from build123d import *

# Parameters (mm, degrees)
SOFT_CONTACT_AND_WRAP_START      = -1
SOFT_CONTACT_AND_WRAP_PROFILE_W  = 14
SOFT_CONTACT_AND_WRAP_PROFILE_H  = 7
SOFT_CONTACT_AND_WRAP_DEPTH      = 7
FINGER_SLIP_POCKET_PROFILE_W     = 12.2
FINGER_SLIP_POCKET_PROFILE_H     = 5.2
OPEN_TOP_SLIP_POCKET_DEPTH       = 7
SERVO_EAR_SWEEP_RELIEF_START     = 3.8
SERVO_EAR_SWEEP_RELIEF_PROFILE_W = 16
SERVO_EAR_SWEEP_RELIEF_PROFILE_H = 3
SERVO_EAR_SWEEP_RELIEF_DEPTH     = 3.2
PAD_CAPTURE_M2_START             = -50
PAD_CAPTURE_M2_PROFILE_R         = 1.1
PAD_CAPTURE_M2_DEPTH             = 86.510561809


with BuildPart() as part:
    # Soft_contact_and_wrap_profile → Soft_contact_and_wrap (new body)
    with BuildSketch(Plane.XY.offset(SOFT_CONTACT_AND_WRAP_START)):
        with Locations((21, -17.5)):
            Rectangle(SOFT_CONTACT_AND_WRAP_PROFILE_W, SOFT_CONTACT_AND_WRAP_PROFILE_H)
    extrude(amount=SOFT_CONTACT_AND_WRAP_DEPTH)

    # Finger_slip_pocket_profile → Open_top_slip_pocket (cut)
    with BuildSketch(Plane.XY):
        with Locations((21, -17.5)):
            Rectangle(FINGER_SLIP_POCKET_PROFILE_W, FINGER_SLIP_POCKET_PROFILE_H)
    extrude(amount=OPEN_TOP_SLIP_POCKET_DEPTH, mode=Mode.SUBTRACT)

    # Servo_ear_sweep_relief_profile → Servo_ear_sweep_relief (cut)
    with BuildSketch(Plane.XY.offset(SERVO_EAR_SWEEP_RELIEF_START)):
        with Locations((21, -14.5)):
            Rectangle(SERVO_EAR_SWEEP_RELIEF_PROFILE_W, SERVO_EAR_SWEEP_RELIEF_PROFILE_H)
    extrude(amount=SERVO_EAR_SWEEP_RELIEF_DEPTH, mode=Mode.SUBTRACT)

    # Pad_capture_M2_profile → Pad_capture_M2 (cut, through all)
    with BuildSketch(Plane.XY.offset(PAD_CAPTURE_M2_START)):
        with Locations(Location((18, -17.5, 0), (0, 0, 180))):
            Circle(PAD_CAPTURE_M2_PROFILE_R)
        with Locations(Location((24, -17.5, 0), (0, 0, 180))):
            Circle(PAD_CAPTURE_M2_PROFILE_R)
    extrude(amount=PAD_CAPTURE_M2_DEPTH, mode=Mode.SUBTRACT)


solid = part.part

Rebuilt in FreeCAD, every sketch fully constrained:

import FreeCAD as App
import Part
import Sketcher

doc = App.newDocument("Part")
body = doc.addObject("PartDesign::Body", "Body")

sketch1 = body.newObject("Sketcher::SketchObject", "Sketch")
sketch1.AttachmentSupport = (doc.getObject("XY_Plane"), [""])
sketch1.MapMode = "FlatFace"
sketch1.AttachmentOffset = App.Placement(App.Vector(0, 0, -1), App.Rotation())
sketch1.addGeometry(Part.LineSegment(App.Vector(14, -14, 0), App.Vector(14, -21, 0)), False)
sketch1.addGeometry(Part.LineSegment(App.Vector(14, -21, 0), App.Vector(28, -21, 0)), False)
sketch1.addGeometry(Part.LineSegment(App.Vector(28, -21, 0), App.Vector(28, -14, 0)), False)
sketch1.addGeometry(Part.LineSegment(App.Vector(28, -14, 0), App.Vector(14, -14, 0)), False)
sketch1.addConstraint(Sketcher.Constraint("Coincident", 0, 2, 1, 1))
sketch1.addConstraint(Sketcher.Constraint("Coincident", 1, 2, 2, 1))
sketch1.addConstraint(Sketcher.Constraint("Coincident", 2, 2, 3, 1))
sketch1.addConstraint(Sketcher.Constraint("Coincident", 3, 2, 0, 1))
sketch1.addConstraint(Sketcher.Constraint("Vertical", 0))
sketch1.addConstraint(Sketcher.Constraint("Horizontal", 1))
sketch1.addConstraint(Sketcher.Constraint("Vertical", 2))
sketch1.addConstraint(Sketcher.Constraint("Horizontal", 3))
sketch1.addConstraint(Sketcher.Constraint("DistanceX", 1, 1, 1, 2, 14.0))
sketch1.addConstraint(Sketcher.Constraint("DistanceY", 0, 2, 0, 1, 7.0))
sketch1.addConstraint(Sketcher.Constraint("DistanceX", -1, 1, 0, 2, 14.0))
sketch1.addConstraint(Sketcher.Constraint("DistanceY", 0, 2, -1, 1, 21.0))
pad1 = body.newObject("PartDesign::Pad", "Pad")
pad1.Profile = sketch1
pad1.Length = 7

sketch2 = body.newObject("Sketcher::SketchObject", "Sketch001")
sketch2.AttachmentSupport = (doc.getObject("XY_Plane"), [""])
sketch2.MapMode = "FlatFace"
sketch2.addGeometry(Part.LineSegment(App.Vector(14.9, -14.9, 0), App.Vector(14.9, -20.1, 0)), False)
sketch2.addGeometry(Part.LineSegment(App.Vector(14.9, -20.1, 0), App.Vector(27.1, -20.1, 0)), False)
sketch2.addGeometry(Part.LineSegment(App.Vector(27.1, -20.1, 0), App.Vector(27.1, -14.9, 0)), False)
sketch2.addGeometry(Part.LineSegment(App.Vector(27.1, -14.9, 0), App.Vector(14.9, -14.9, 0)), False)
sketch2.addConstraint(Sketcher.Constraint("Coincident", 0, 2, 1, 1))
sketch2.addConstraint(Sketcher.Constraint("Coincident", 1, 2, 2, 1))
sketch2.addConstraint(Sketcher.Constraint("Coincident", 2, 2, 3, 1))
sketch2.addConstraint(Sketcher.Constraint("Coincident", 3, 2, 0, 1))
sketch2.addConstraint(Sketcher.Constraint("Vertical", 0))
sketch2.addConstraint(Sketcher.Constraint("Horizontal", 1))
sketch2.addConstraint(Sketcher.Constraint("Vertical", 2))
sketch2.addConstraint(Sketcher.Constraint("Horizontal", 3))
sketch2.addConstraint(Sketcher.Constraint("DistanceX", 1, 1, 1, 2, 12.2))
sketch2.addConstraint(Sketcher.Constraint("DistanceY", 0, 2, 0, 1, 5.2))
sketch2.addConstraint(Sketcher.Constraint("DistanceX", -1, 1, 0, 2, 14.9))
sketch2.addConstraint(Sketcher.Constraint("DistanceY", 0, 2, -1, 1, 20.1))
pocket1 = body.newObject("PartDesign::Pocket", "Pocket")
pocket1.Profile = sketch2
pocket1.Length = 7
pocket1.Reversed = True

sketch3 = body.newObject("Sketcher::SketchObject", "Sketch002")
sketch3.AttachmentSupport = (doc.getObject("XY_Plane"), [""])
sketch3.MapMode = "FlatFace"
sketch3.AttachmentOffset = App.Placement(App.Vector(0, 0, 3.8), App.Rotation())
sketch3.addGeometry(Part.LineSegment(App.Vector(13, -13, 0), App.Vector(13, -16, 0)), False)
sketch3.addGeometry(Part.LineSegment(App.Vector(13, -16, 0), App.Vector(29, -16, 0)), False)
sketch3.addGeometry(Part.LineSegment(App.Vector(29, -16, 0), App.Vector(29, -13, 0)), False)
sketch3.addGeometry(Part.LineSegment(App.Vector(29, -13, 0), App.Vector(13, -13, 0)), False)
sketch3.addConstraint(Sketcher.Constraint("Coincident", 0, 2, 1, 1))
sketch3.addConstraint(Sketcher.Constraint("Coincident", 1, 2, 2, 1))
sketch3.addConstraint(Sketcher.Constraint("Coincident", 2, 2, 3, 1))
sketch3.addConstraint(Sketcher.Constraint("Coincident", 3, 2, 0, 1))
sketch3.addConstraint(Sketcher.Constraint("Vertical", 0))
sketch3.addConstraint(Sketcher.Constraint("Horizontal", 1))
sketch3.addConstraint(Sketcher.Constraint("Vertical", 2))
sketch3.addConstraint(Sketcher.Constraint("Horizontal", 3))
sketch3.addConstraint(Sketcher.Constraint("DistanceX", 1, 1, 1, 2, 16.0))
sketch3.addConstraint(Sketcher.Constraint("DistanceY", 0, 2, 0, 1, 3.0))
sketch3.addConstraint(Sketcher.Constraint("DistanceX", -1, 1, 0, 2, 13.0))
sketch3.addConstraint(Sketcher.Constraint("DistanceY", 0, 2, -1, 1, 16.0))
pocket2 = body.newObject("PartDesign::Pocket", "Pocket001")
pocket2.Profile = sketch3
pocket2.Length = 3.2
pocket2.Reversed = True

sketch4 = body.newObject("Sketcher::SketchObject", "Sketch003")
sketch4.AttachmentSupport = (doc.getObject("XY_Plane"), [""])
sketch4.MapMode = "FlatFace"
sketch4.AttachmentOffset = App.Placement(App.Vector(0, 0, -50), App.Rotation())
sketch4.addGeometry(Part.Circle(App.Vector(18, -17.5, 0), App.Vector(0, 0, 1), 1.1), False)
sketch4.addGeometry(Part.Circle(App.Vector(24, -17.5, 0), App.Vector(0, 0, 1), 1.1), False)
sketch4.addConstraint(Sketcher.Constraint("Equal", 0, 1))
sketch4.addConstraint(Sketcher.Constraint("Horizontal", 0, 3, 1, 3))
sketch4.addConstraint(Sketcher.Constraint("Diameter", 0, 2.2))
sketch4.addConstraint(Sketcher.Constraint("DistanceX", -1, 1, 0, 3, 18.0))
sketch4.addConstraint(Sketcher.Constraint("DistanceX", -1, 1, 1, 3, 24.0))
sketch4.addConstraint(Sketcher.Constraint("DistanceY", 0, 3, -1, 1, 17.5))
pocket3 = body.newObject("PartDesign::Pocket", "Pocket002")
pocket3.Profile = sketch4
pocket3.Type = "ThroughAll"
pocket3.Reversed = True

doc.recompute()
